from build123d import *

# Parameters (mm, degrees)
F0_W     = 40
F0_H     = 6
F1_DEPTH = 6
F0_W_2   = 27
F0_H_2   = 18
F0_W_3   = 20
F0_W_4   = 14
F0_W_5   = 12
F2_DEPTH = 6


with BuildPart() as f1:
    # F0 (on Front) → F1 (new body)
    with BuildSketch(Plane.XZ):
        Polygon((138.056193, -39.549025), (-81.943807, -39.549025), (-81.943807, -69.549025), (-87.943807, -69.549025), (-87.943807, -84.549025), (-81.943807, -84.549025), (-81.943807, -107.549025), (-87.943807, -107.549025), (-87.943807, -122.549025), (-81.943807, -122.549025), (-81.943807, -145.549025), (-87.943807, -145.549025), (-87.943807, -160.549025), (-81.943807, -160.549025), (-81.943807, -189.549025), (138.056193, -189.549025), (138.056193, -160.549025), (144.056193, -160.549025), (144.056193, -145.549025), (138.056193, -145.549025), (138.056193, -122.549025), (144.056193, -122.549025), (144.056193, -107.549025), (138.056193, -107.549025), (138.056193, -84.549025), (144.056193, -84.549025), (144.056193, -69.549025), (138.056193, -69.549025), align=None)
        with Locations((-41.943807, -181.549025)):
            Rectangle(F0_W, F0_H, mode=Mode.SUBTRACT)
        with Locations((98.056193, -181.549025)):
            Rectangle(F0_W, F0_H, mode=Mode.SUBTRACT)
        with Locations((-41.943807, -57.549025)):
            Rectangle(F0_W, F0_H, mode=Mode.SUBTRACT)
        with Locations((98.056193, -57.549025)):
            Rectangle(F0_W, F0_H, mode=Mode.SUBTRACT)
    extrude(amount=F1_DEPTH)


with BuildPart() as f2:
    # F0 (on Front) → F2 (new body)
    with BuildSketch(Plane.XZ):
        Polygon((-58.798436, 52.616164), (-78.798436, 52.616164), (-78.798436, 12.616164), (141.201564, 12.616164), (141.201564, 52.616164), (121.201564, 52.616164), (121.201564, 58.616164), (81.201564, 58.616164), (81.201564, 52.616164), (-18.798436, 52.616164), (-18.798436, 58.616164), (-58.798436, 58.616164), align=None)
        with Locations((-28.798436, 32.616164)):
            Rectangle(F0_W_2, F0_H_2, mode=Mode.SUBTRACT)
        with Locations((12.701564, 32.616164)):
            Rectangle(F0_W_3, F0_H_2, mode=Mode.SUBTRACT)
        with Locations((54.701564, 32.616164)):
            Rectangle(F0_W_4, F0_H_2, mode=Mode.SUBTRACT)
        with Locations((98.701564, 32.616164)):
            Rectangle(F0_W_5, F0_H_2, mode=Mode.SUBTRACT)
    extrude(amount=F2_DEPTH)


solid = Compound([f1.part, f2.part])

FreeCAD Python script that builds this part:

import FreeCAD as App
import Part
import Sketcher

V = App.Vector
Q = App.Units.Quantity

doc = App.newDocument("Part")
body = doc.addObject("PartDesign::Body", "Body")

sketch1 = body.newObject("Sketcher::SketchObject", "Sketch")
sketch1.AttachmentSupport = (doc.getObject("XZ_Plane"), [""])
sketch1.MapMode = "FlatFace"
sketch1.addGeometry([
    Part.LineSegment(V(138, -40, 0), V(-82, -40, 0)),
    Part.LineSegment(V(-82, -40, 0), V(-82, -70, 0)),
    Part.LineSegment(V(-82, -70, 0), V(-88, -70, 0)),
    Part.LineSegment(V(-88, -70, 0), V(-88, -85, 0)),
    Part.LineSegment(V(-88, -85, 0), V(-82, -85, 0)),
    Part.LineSegment(V(-82, -85, 0), V(-82, -108, 0)),
    Part.LineSegment(V(-82, -108, 0), V(-88, -108, 0)),
    Part.LineSegment(V(-88, -108, 0), V(-88, -123, 0)),
    Part.LineSegment(V(-88, -123, 0), V(-82, -123, 0)),
    Part.LineSegment(V(-82, -123, 0), V(-82, -146, 0)),
    Part.LineSegment(V(-82, -146, 0), V(-88, -146, 0)),
    Part.LineSegment(V(-88, -146, 0), V(-88, -161, 0)),
    Part.LineSegment(V(-88, -161, 0), V(-82, -161, 0)),
    Part.LineSegment(V(-82, -161, 0), V(-82, -190, 0)),
    Part.LineSegment(V(-82, -190, 0), V(138, -190, 0)),
    Part.LineSegment(V(138, -190, 0), V(138, -161, 0)),
    Part.LineSegment(V(138, -161, 0), V(144, -161, 0)),
    Part.LineSegment(V(144, -161, 0), V(144, -146, 0)),
    Part.LineSegment(V(144, -146, 0), V(138, -146, 0)),
    Part.LineSegment(V(138, -146, 0), V(138, -123, 0)),
    Part.LineSegment(V(138, -123, 0), V(144, -123, 0)),
    Part.LineSegment(V(144, -123, 0), V(144, -108, 0)),
    Part.LineSegment(V(144, -108, 0), V(138, -108, 0)),
    Part.LineSegment(V(138, -108, 0), V(138, -85, 0)),
    Part.LineSegment(V(138, -85, 0), V(144, -85, 0)),
    Part.LineSegment(V(144, -85, 0), V(144, -70, 0)),
    Part.LineSegment(V(144, -70, 0), V(138, -70, 0)),
    Part.LineSegment(V(138, -70, 0), V(138, -40, 0)),
    Part.LineSegment(V(-22, -185, 0), V(-62, -185, 0)),
    Part.LineSegment(V(-62, -185, 0), V(-62, -179, 0)),
    Part.LineSegment(V(-62, -179, 0), V(-22, -179, 0)),
    Part.LineSegment(V(-22, -179, 0), V(-22, -185, 0)),
    Part.LineSegment(V(118, -185, 0), V(78, -185, 0)),
    Part.LineSegment(V(78, -185, 0), V(78, -179, 0)),
    Part.LineSegment(V(78, -179, 0), V(118, -179, 0)),
    Part.LineSegment(V(118, -179, 0), V(118, -185, 0)),
    Part.LineSegment(V(-22, -61, 0), V(-62, -61, 0)),
    Part.LineSegment(V(-62, -61, 0), V(-62, -55, 0)),
    Part.LineSegment(V(-62, -55, 0), V(-22, -55, 0)),
    Part.LineSegment(V(-22, -55, 0), V(-22, -61, 0)),
    Part.LineSegment(V(118, -61, 0), V(78, -61, 0)),
    Part.LineSegment(V(78, -61, 0), V(78, -55, 0)),
    Part.LineSegment(V(78, -55, 0), V(118, -55, 0)),
    Part.LineSegment(V(118, -55, 0), V(118, -61, 0)),
], False)
sketch1.addConstraint([
    Sketcher.Constraint("Coincident", 0, 2, 1, 1),
    Sketcher.Constraint("Coincident", 1, 2, 2, 1),
    Sketcher.Constraint("Coincident", 2, 2, 3, 1),
    Sketcher.Constraint("Coincident", 3, 2, 4, 1),
    Sketcher.Constraint("Coincident", 4, 2, 5, 1),
    Sketcher.Constraint("Coincident", 5, 2, 6, 1),
    Sketcher.Constraint("Coincident", 6, 2, 7, 1),
    Sketcher.Constraint("Coincident", 7, 2, 8, 1),
    Sketcher.Constraint("Coincident", 8, 2, 9, 1),
    Sketcher.Constraint("Coincident", 9, 2, 10, 1),
    Sketcher.Constraint("Coincident", 10, 2, 11, 1),
    Sketcher.Constraint("Coincident", 11, 2, 12, 1),
    Sketcher.Constraint("Coincident", 12, 2, 13, 1),
    Sketcher.Constraint("Coincident", 13, 2, 14, 1),
    Sketcher.Constraint("Coincident", 14, 2, 15, 1),
    Sketcher.Constraint("Coincident", 15, 2, 16, 1),
    Sketcher.Constraint("Coincident", 16, 2, 17, 1),
    Sketcher.Constraint("Coincident", 17, 2, 18, 1),
    Sketcher.Constraint("Coincident", 18, 2, 19, 1),
    Sketcher.Constraint("Coincident", 19, 2, 20, 1),
    Sketcher.Constraint("Coincident", 20, 2, 21, 1),
    Sketcher.Constraint("Coincident", 21, 2, 22, 1),
    Sketcher.Constraint("Coincident", 22, 2, 23, 1),
    Sketcher.Constraint("Coincident", 23, 2, 24, 1),
    Sketcher.Constraint("Coincident", 24, 2, 25, 1),
    Sketcher.Constraint("Coincident", 25, 2, 26, 1),
    Sketcher.Constraint("Coincident", 26, 2, 27, 1),
    Sketcher.Constraint("Coincident", 27, 2, 0, 1),
    Sketcher.Constraint("Coincident", 28, 2, 29, 1),
    Sketcher.Constraint("Coincident", 29, 2, 30, 1),
    Sketcher.Constraint("Coincident", 30, 2, 31, 1),
    Sketcher.Constraint("Coincident", 31, 2, 28, 1),
    Sketcher.Constraint("Coincident", 32, 2, 33, 1),
    Sketcher.Constraint("Coincident", 33, 2, 34, 1),
    Sketcher.Constraint("Coincident", 34, 2, 35, 1),
    Sketcher.Constraint("Coincident", 35, 2, 32, 1),
    Sketcher.Constraint("Coincident", 36, 2, 37, 1),
    Sketcher.Constraint("Coincident", 37, 2, 38, 1),
    Sketcher.Constraint("Coincident", 38, 2, 39, 1),
    Sketcher.Constraint("Coincident", 39, 2, 36, 1),
    Sketcher.Constraint("Coincident", 40, 2, 41, 1),
    Sketcher.Constraint("Coincident", 41, 2, 42, 1),
    Sketcher.Constraint("Coincident", 42, 2, 43, 1),
    Sketcher.Constraint("Coincident", 43, 2, 40, 1),
    Sketcher.Constraint("Horizontal", 0),
    Sketcher.Constraint("Vertical", 1),
    Sketcher.Constraint("Horizontal", 2),
    Sketcher.Constraint("Vertical", 3),
    Sketcher.Constraint("Horizontal", 4),
    Sketcher.Constraint("Vertical", 5),
    Sketcher.Constraint("Horizontal", 6),
    Sketcher.Constraint("Vertical", 7),
    Sketcher.Constraint("Horizontal", 8),
    Sketcher.Constraint("Vertical", 9),
    Sketcher.Constraint("Horizontal", 10),
    Sketcher.Constraint("Vertical", 11),
    Sketcher.Constraint("Horizontal", 12),
    Sketcher.Constraint("Vertical", 13),
    Sketcher.Constraint("Horizontal", 14),
    Sketcher.Constraint("Vertical", 15),
    Sketcher.Constraint("Horizontal", 16),
    Sketcher.Constraint("Vertical", 17),
    Sketcher.Constraint("Horizontal", 18),
    Sketcher.Constraint("Vertical", 19),
    Sketcher.Constraint("Horizontal", 20),
    Sketcher.Constraint("Vertical", 21),
    Sketcher.Constraint("Horizontal", 22),
    Sketcher.Constraint("Vertical", 23),
    Sketcher.Constraint("Horizontal", 24),
    Sketcher.Constraint("Vertical", 25),
    Sketcher.Constraint("Horizontal", 26),
    Sketcher.Constraint("Vertical", 27),
    Sketcher.Constraint("Horizontal", 28),
    Sketcher.Constraint("Vertical", 29),
    Sketcher.Constraint("Horizontal", 30),
    Sketcher.Constraint("Vertical", 31),
    Sketcher.Constraint("Horizontal", 32),
    Sketcher.Constraint("Vertical", 33),
    Sketcher.Constraint("Horizontal", 34),
    Sketcher.Constraint("Vertical", 35),
    Sketcher.Constraint("Horizontal", 36),
    Sketcher.Constraint("Vertical", 37),
    Sketcher.Constraint("Horizontal", 38),
    Sketcher.Constraint("Vertical", 39),
    Sketcher.Constraint("Horizontal", 40),
    Sketcher.Constraint("Vertical", 41),
    Sketcher.Constraint("Horizontal", 42),
    Sketcher.Constraint("Vertical", 43),
    Sketcher.Constraint("Horizontal", 12, 2, 15, 2),
    Sketcher.Constraint("Horizontal", 10, 2, 17, 2),
    Sketcher.Constraint("Horizontal", 8, 2, 19, 2),
    Sketcher.Constraint("Horizontal", 6, 2, 21, 2),
    Sketcher.Constraint("Horizontal", 4, 2, 23, 2),
    Sketcher.Constraint("Horizontal", 2, 2, 25, 2),
    Sketcher.Constraint("Horizontal", 31, 2, 32, 2),
    Sketcher.Constraint("Horizontal", 30, 2, 33, 2),
    Sketcher.Constraint("Horizontal", 39, 2, 40, 2),
    Sketcher.Constraint("Horizontal", 38, 2, 41, 2),
    Sketcher.Constraint("Vertical", 1, 2, 4, 2),
    Sketcher.Constraint("Vertical", 3, 2, 6, 2),
    Sketcher.Constraint("Vertical", 5, 2, 8, 2),
    Sketcher.Constraint("Vertical", 7, 2, 10, 2),
    Sketcher.Constraint("Vertical", 9, 2, 12, 2),
    Sketcher.Constraint("Vertical", 15, 2, 18, 2),
    Sketcher.Constraint("Vertical", 17, 2, 20, 2),
    Sketcher.Constraint("Vertical", 19, 2, 22, 2),
    Sketcher.Constraint("Vertical", 21, 2, 24, 2),
    Sketcher.Constraint("Vertical", 23, 2, 26, 2),
    Sketcher.Constraint("Vertical", 29, 2, 36, 2),
    Sketcher.Constraint("Vertical", 31, 2, 38, 2),
    Sketcher.Constraint("Vertical", 33, 2, 40, 2),
    Sketcher.Constraint("Vertical", 35, 2, 42, 2),
    Sketcher.Constraint("Equal", 12, 16),
    Sketcher.Constraint("Equal", 30, 32),
    Sketcher.Constraint("Equal", 3, 7),
    Sketcher.Constraint("Equal", 5, 9),
    Sketcher.Constraint("Equal", 7, 11),
    Sketcher.Constraint("Equal", 26, 29),
    Sketcher.Constraint("Equal", 35, 37),
    Sketcher.Constraint("DistanceX", 0, 2, 0, 1, Q("220 mm")),
    Sketcher.Constraint("DistanceX", 2, 2, 2, 1, Q("6 mm")),
    Sketcher.Constraint("DistanceX", 28, 2, 28, 1, Q("40 mm")),
    Sketcher.Constraint("DistanceY", 1, 2, 1, 1, Q("30 mm")),
    Sketcher.Constraint("DistanceY", 3, 2, 3, 1, Q("15 mm")),
    Sketcher.Constraint("DistanceY", 5, 2, 5, 1, Q("23 mm")),
    Sketcher.Constraint("DistanceY", 13, 2, 13, 1, Q("29 mm")),
    Sketcher.Constraint("DistanceX", 13, 2, 28, 2, Q("20 mm")),
    Sketcher.Constraint("DistanceY", 13, 2, 28, 2, Q("5 mm")),
    Sketcher.Constraint("DistanceX", 32, 2, 14, 2, Q("60 mm")),
    Sketcher.Constraint("DistanceY", 1, 2, 36, 2, Q("9 mm")),
    Sketcher.Constraint("DistanceX", 0, 2, -1, 1, Q("81.943807 mm")),
    Sketcher.Constraint("DistanceY", 0, 2, -1, 1, Q("39.549025 mm")),
])
pad1 = body.newObject("PartDesign::Pad", "Pad")
pad1.Profile = sketch1
pad1.Length = 6
body2 = doc.addObject("PartDesign::Body", "Body001")

sketch2 = body2.newObject("Sketcher::SketchObject", "Sketch001")
sketch2.AttachmentSupport = (doc.getObject("XZ_Plane001"), [""])
sketch2.MapMode = "FlatFace"
sketch2.addGeometry([
    Part.LineSegment(V(-59, 53, 0), V(-79, 53, 0)),
    Part.LineSegment(V(-79, 53, 0), V(-79, 13, 0)),
    Part.LineSegment(V(-79, 13, 0), V(141, 13, 0)),
    Part.LineSegment(V(141, 13, 0), V(141, 53, 0)),
    Part.LineSegment(V(141, 53, 0), V(121, 53, 0)),
    Part.LineSegment(V(121, 53, 0), V(121, 59, 0)),
    Part.LineSegment(V(121, 59, 0), V(81, 59, 0)),
    Part.LineSegment(V(81, 59, 0), V(81, 53, 0)),
    Part.LineSegment(V(81, 53, 0), V(-19, 53, 0)),
    Part.LineSegment(V(-19, 53, 0), V(-19, 59, 0)),
    Part.LineSegment(V(-19, 59, 0), V(-59, 59, 0)),
    Part.LineSegment(V(-59, 59, 0), V(-59, 53, 0)),
    Part.LineSegment(V(-15, 24, 0), V(-42, 24, 0)),
    Part.LineSegment(V(-42, 24, 0), V(-42, 42, 0)),
    Part.LineSegment(V(-42, 42, 0), V(-15, 42, 0)),
    Part.LineSegment(V(-15, 42, 0), V(-15, 24, 0)),
    Part.LineSegment(V(23, 24, 0), V(3, 24, 0)),
    Part.LineSegment(V(3, 24, 0), V(3, 42, 0)),
    Part.LineSegment(V(3, 42, 0), V(23, 42, 0)),
    Part.LineSegment(V(23, 42, 0), V(23, 24, 0)),
    Part.LineSegment(V(62, 24, 0), V(48, 24, 0)),
    Part.LineSegment(V(48, 24, 0), V(48, 42, 0)),
    Part.LineSegment(V(48, 42, 0), V(62, 42, 0)),
    Part.LineSegment(V(62, 42, 0), V(62, 24, 0)),
    Part.LineSegment(V(105, 24, 0), V(93, 24, 0)),
    Part.LineSegment(V(93, 24, 0), V(93, 42, 0)),
    Part.LineSegment(V(93, 42, 0), V(105, 42, 0)),
    Part.LineSegment(V(105, 42, 0), V(105, 24, 0)),
], False)
sketch2.addConstraint([
    Sketcher.Constraint("Coincident", 0, 2, 1, 1),
    Sketcher.Constraint("Coincident", 1, 2, 2, 1),
    Sketcher.Constraint("Coincident", 2, 2, 3, 1),
    Sketcher.Constraint("Coincident", 3, 2, 4, 1),
    Sketcher.Constraint("Coincident", 4, 2, 5, 1),
    Sketcher.Constraint("Coincident", 5, 2, 6, 1),
    Sketcher.Constraint("Coincident", 6, 2, 7, 1),
    Sketcher.Constraint("Coincident", 7, 2, 8, 1),
    Sketcher.Constraint("Coincident", 8, 2, 9, 1),
    Sketcher.Constraint("Coincident", 9, 2, 10, 1),
    Sketcher.Constraint("Coincident", 10, 2, 11, 1),
    Sketcher.Constraint("Coincident", 11, 2, 0, 1),
    Sketcher.Constraint("Coincident", 12, 2, 13, 1),
    Sketcher.Constraint("Coincident", 13, 2, 14, 1),
    Sketcher.Constraint("Coincident", 14, 2, 15, 1),
    Sketcher.Constraint("Coincident", 15, 2, 12, 1),
    Sketcher.Constraint("Coincident", 16, 2, 17, 1),
    Sketcher.Constraint("Coincident", 17, 2, 18, 1),
    Sketcher.Constraint("Coincident", 18, 2, 19, 1),
    Sketcher.Constraint("Coincident", 19, 2, 16, 1),
    Sketcher.Constraint("Coincident", 20, 2, 21, 1),
    Sketcher.Constraint("Coincident", 21, 2, 22, 1),
    Sketcher.Constraint("Coincident", 22, 2, 23, 1),
    Sketcher.Constraint("Coincident", 23, 2, 20, 1),
    Sketcher.Constraint("Coincident", 24, 2, 25, 1),
    Sketcher.Constraint("Coincident", 25, 2, 26, 1),
    Sketcher.Constraint("Coincident", 26, 2, 27, 1),
    Sketcher.Constraint("Coincident", 27, 2, 24, 1),
    Sketcher.Constraint("Horizontal", 0),
    Sketcher.Constraint("Vertical", 1),
    Sketcher.Constraint("Horizontal", 2),
    Sketcher.Constraint("Vertical", 3),
    Sketcher.Constraint("Horizontal", 4),
    Sketcher.Constraint("Vertical", 5),
    Sketcher.Constraint("Horizontal", 6),
    Sketcher.Constraint("Vertical", 7),
    Sketcher.Constraint("Horizontal", 8),
    Sketcher.Constraint("Vertical", 9),
    Sketcher.Constraint("Horizontal", 10),
    Sketcher.Constraint("Vertical", 11),
    Sketcher.Constraint("Horizontal", 12),
    Sketcher.Constraint("Vertical", 13),
    Sketcher.Constraint("Horizontal", 14),
    Sketcher.Constraint("Vertical", 15),
    Sketcher.Constraint("Horizontal", 16),
    Sketcher.Constraint("Vertical", 17),
    Sketcher.Constraint("Horizontal", 18),
    Sketcher.Constraint("Vertical", 19),
    Sketcher.Constraint("Horizontal", 20),
    Sketcher.Constraint("Vertical", 21),
    Sketcher.Constraint("Horizontal", 22),
    Sketcher.Constraint("Vertical", 23),
    Sketcher.Constraint("Horizontal", 24),
    Sketcher.Constraint("Vertical", 25),
    Sketcher.Constraint("Horizontal", 26),
    Sketcher.Constraint("Vertical", 27),
    Sketcher.Constraint("Horizontal", 0, 2, 3, 2),
    Sketcher.Constraint("Horizontal", 4, 2, 7, 2),
    Sketcher.Constraint("Horizontal", 6, 2, 9, 2),
    Sketcher.Constraint("Horizontal", 15, 2, 16, 2),
    Sketcher.Constraint("Horizontal", 14, 2, 17, 2),
    Sketcher.Constraint("Horizontal", 19, 2, 20, 2),
    Sketcher.Constraint("Horizontal", 18, 2, 21, 2),
    Sketcher.Constraint("Horizontal", 23, 2, 24, 2),
    Sketcher.Constraint("Horizontal", 22, 2, 25, 2),
    Sketcher.Constraint("Equal", 0, 4),
    Sketcher.Constraint("Equal", 6, 10),
    Sketcher.Constraint("Equal", 4, 16),
    Sketcher.Constraint("Equal", 10, 1),
    Sketcher.Constraint("DistanceX", 0, 2, 0, 1, Q("20 mm")),
    Sketcher.Constraint("DistanceX", 2, 1, 2, 2, Q("220 mm")),
    Sketcher.Constraint("DistanceX", 6, 2, 6, 1, Q("40 mm")),
    Sketcher.Constraint("DistanceX", 12, 2, 12, 1, Q("27 mm")),
    Sketcher.Constraint("DistanceX", 20, 2, 20, 1, Q("14 mm")),
    Sketcher.Constraint("DistanceX", 24, 2, 24, 1, Q("12 mm")),
    Sketcher.Constraint("DistanceY", 5, 1, 5, 2, Q("6 mm")),
    Sketcher.Constraint("DistanceY", 13, 1, 13, 2, Q("18 mm")),
    Sketcher.Constraint("DistanceY", 12, 2, 11, 2, Q("29 mm")),
    Sketcher.Constraint("DistanceX", 15, 2, 16, 2, Q("18 mm")),
    Sketcher.Constraint("DistanceX", 19, 2, 20, 2, Q("25 mm")),
    Sketcher.Constraint("DistanceX", 23, 2, 24, 2, Q("31 mm")),
    Sketcher.Constraint("DistanceX", 11, 2, 12, 2, Q("16.5 mm")),
    Sketcher.Constraint("DistanceX", 0, 2, -1, 1, Q("78.798436 mm")),
    Sketcher.Constraint("DistanceY", -1, 1, 0, 2, Q("52.616164 mm")),
])
pad2 = body2.newObject("PartDesign::Pad", "Pad001")
pad2.Profile = sketch2
pad2.Length = 6

doc.recompute()
